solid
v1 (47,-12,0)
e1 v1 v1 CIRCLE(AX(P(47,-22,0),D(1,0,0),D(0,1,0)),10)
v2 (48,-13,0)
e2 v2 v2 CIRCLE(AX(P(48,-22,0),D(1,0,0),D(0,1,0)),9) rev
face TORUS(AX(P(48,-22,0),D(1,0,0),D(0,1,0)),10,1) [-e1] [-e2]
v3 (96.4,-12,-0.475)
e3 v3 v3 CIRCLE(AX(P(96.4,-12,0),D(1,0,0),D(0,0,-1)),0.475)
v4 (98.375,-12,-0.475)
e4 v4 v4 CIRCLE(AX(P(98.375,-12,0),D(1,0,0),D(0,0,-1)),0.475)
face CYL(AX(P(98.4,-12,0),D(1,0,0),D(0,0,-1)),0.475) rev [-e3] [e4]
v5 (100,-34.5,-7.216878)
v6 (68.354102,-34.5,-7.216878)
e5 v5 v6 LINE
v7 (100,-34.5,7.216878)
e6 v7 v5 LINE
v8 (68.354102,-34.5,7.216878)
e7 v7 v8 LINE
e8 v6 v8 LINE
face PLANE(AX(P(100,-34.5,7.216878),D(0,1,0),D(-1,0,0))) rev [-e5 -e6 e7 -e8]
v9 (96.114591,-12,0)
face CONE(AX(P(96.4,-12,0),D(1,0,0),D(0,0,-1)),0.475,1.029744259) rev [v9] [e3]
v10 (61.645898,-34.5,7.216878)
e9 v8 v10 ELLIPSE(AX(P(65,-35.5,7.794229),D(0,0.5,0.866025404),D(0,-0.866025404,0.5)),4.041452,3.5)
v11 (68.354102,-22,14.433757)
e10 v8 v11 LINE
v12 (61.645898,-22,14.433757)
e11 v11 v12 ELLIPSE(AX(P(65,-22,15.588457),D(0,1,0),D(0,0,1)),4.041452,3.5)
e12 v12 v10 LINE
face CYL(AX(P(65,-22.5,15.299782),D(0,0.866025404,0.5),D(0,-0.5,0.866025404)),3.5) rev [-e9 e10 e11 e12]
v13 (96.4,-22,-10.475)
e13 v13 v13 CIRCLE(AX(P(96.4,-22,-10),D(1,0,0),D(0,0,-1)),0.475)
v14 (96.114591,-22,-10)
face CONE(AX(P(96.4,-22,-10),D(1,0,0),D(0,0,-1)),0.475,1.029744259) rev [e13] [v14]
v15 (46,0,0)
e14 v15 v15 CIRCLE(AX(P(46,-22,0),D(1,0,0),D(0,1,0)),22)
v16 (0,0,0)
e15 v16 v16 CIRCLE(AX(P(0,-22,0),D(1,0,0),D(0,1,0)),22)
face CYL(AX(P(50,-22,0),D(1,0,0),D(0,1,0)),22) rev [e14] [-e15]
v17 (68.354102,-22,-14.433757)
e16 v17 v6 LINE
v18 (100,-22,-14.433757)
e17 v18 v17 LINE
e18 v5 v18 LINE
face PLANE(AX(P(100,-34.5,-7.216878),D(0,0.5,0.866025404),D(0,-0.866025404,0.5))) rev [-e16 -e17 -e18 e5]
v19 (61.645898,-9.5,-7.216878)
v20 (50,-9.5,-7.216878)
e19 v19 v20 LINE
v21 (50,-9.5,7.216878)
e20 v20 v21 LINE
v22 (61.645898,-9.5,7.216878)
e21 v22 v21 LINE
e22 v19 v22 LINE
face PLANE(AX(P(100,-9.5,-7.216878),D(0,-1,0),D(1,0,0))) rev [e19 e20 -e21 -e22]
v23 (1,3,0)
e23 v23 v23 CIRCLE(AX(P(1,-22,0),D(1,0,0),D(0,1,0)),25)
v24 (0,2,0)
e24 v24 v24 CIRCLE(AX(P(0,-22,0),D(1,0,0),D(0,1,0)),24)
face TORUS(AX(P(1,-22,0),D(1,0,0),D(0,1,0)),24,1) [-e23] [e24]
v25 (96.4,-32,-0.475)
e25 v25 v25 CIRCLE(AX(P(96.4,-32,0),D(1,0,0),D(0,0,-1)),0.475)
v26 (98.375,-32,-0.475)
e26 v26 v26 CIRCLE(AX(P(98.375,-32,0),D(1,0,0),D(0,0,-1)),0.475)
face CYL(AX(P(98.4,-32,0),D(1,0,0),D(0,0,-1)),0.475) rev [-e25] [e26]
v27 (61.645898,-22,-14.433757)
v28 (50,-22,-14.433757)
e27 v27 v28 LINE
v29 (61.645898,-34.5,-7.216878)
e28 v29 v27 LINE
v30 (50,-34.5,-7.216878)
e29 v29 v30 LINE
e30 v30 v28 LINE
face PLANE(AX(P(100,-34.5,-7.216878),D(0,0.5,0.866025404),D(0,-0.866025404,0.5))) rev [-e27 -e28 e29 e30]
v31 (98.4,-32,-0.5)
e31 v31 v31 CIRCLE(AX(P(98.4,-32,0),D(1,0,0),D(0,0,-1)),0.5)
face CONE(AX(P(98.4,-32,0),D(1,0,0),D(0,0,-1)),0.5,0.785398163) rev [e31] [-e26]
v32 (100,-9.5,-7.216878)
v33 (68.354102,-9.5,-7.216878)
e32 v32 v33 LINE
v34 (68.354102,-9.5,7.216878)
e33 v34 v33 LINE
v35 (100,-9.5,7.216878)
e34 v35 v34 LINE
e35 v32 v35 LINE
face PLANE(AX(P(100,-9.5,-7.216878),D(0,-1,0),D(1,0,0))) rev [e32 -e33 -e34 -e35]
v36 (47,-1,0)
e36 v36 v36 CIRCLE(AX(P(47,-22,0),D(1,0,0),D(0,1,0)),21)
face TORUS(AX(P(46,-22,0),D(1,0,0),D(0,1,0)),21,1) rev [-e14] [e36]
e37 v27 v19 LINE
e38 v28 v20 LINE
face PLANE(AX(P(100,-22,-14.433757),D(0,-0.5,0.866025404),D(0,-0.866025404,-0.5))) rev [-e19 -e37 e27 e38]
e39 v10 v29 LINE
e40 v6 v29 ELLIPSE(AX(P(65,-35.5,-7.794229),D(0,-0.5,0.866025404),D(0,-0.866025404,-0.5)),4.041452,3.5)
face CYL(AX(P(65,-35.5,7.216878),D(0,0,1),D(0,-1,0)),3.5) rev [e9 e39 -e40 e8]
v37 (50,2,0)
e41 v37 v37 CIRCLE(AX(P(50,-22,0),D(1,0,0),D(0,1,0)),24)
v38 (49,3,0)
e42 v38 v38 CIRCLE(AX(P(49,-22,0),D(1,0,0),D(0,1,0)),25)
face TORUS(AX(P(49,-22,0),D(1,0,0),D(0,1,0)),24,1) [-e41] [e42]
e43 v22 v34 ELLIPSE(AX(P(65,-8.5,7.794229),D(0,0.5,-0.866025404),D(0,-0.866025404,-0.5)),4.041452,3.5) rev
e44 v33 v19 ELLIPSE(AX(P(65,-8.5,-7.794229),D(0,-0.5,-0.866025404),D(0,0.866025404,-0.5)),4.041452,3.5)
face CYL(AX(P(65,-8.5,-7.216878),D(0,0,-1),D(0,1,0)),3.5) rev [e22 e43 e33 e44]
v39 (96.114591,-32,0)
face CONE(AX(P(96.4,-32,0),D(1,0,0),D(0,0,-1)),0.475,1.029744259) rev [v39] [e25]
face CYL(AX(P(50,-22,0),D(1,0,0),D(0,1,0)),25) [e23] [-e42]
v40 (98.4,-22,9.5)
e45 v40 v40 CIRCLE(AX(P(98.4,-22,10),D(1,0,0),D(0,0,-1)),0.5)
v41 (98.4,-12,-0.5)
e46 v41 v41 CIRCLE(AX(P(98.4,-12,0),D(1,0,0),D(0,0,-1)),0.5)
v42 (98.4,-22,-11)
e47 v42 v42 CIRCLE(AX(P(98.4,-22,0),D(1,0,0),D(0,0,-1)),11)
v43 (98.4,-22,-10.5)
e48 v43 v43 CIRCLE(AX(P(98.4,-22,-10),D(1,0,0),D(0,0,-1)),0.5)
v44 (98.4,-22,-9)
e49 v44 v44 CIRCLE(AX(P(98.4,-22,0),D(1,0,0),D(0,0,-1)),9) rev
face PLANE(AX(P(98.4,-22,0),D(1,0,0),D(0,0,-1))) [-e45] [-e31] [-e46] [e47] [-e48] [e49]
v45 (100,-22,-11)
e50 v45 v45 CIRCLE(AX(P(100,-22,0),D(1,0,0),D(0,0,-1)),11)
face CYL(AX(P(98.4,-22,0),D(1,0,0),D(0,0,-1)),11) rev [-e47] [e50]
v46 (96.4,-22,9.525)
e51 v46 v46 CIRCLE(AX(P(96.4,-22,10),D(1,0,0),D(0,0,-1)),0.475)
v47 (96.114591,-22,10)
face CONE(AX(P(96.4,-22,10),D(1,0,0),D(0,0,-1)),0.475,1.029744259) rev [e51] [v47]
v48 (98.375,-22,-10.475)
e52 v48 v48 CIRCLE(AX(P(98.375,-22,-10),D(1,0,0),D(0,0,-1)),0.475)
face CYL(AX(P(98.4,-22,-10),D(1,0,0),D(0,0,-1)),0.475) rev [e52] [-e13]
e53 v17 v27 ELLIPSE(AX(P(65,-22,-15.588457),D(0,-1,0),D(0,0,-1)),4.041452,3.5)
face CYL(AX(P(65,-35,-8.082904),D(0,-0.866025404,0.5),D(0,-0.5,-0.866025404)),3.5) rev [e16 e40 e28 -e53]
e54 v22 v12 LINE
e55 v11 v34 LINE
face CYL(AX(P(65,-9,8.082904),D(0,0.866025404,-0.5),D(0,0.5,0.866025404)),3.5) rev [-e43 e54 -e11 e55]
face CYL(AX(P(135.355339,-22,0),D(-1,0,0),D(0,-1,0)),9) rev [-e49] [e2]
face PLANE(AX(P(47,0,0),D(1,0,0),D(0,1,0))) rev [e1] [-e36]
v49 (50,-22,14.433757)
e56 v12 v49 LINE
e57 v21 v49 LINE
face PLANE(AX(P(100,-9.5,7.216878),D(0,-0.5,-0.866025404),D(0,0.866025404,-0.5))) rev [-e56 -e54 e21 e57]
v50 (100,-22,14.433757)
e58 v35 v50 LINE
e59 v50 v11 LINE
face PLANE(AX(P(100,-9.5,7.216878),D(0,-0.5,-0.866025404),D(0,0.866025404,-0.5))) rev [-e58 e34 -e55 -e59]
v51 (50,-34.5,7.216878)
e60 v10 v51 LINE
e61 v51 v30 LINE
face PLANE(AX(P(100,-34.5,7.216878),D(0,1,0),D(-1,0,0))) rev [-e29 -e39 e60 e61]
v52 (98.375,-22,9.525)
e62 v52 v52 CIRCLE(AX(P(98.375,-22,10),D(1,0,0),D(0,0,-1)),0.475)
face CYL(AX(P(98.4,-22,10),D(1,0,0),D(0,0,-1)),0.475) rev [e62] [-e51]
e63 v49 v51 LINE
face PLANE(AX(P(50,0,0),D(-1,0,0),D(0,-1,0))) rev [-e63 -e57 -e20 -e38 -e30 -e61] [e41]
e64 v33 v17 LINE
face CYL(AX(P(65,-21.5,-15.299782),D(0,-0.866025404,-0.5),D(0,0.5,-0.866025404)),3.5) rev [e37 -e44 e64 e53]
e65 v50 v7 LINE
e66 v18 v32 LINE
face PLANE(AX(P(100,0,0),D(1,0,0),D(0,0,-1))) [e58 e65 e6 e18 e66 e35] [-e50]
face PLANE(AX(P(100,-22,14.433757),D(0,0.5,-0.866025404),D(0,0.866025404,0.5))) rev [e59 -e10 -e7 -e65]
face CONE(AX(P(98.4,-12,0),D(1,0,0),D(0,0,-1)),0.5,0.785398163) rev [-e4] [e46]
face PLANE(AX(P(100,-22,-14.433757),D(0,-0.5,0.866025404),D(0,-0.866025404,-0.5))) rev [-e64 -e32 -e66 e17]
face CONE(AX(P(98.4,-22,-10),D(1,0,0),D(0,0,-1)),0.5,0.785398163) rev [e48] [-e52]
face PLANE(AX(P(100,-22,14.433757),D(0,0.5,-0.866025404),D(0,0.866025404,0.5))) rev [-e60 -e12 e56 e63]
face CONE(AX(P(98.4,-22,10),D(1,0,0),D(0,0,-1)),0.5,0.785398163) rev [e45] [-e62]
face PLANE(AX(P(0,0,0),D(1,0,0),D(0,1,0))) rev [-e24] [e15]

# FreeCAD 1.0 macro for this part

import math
import FreeCAD as App
import Part
import Sketcher
from FreeCAD import Vector
Q = App.Units.Quantity


def edges_at(feature, points):
    """Names of the edges that pass closest to the given points."""
    edges = feature.Shape.Edges
    near = lambda p: min(range(len(edges)), key=lambda i: edges[i].distToShape(Part.Vertex(*p))[0])
    return sorted({f"Edge{near(p) + 1}" for p in points})


def add_polygon(sketch, points):
    """Adds a closed chain of lines whose ends are joined by coincident constraints."""
    first, n = sketch.GeometryCount, len(points)
    for a, b in zip(points, points[1:] + points[:1]):
        sketch.addGeometry(Part.LineSegment(App.Vector(*a, 0), App.Vector(*b, 0)), False)
    for i in range(n):
        sketch.addConstraint(Sketcher.Constraint("Coincident", first + i, 2, first + (i + 1) % n, 1))

doc = App.newDocument("Part")
params = doc.addObject("Spreadsheet::Sheet", "Params")
for row, (alias, value) in enumerate([
    ("sketch1_radius", "1 mm"),
    ("sketch1_width", "46 mm"),
    ("sketch1_width2", "2 mm"),
    ("sketch1_height", "10 mm"),
    ("revolution_angle", "360 deg"),
    ("pad1_length", "50 mm"),
    ("sketch3_diameter", "25 mm"),
    ("sketch3_diameter2", "18 mm"),
    ("pad2_length", "53 mm"),
    ("sketch4_width", "3.5 mm"),
    ("groove_angle", "360 deg"),
    ("fillet_radius", "1 mm"),
    ("sketch5_diameter", "22 mm"),
    ("pocket1_length", "1.6 mm"),
    ("sketch6_height", "0.5 mm"),
    ("groove2_angle", "360 deg"),
], start=1):
    params.set(f"A{row}", alias)
    params.set(f"B{row}", "=" + value)
    params.setAlias(f"B{row}", alias)

body = doc.addObject("PartDesign::Body", "Body")

# Sketch on XY plane
sketch1 = body.newObject("Sketcher::SketchObject", "Sketch")
sketch1.AttachmentSupport = (doc.getObject("XY_Plane"), [""])
sketch1.MapMode = "FlatFace"
sketch1.addGeometry(Part.ArcOfCircle(Part.Circle(Vector(1, 2, 0), Vector(0, 0, 1), 1), math.radians(90), math.radians(180)), False)
sketch1.addGeometry(Part.LineSegment(Vector(0, 2, 0), Vector(0, 0, 0)), False)
sketch1.addGeometry(Part.LineSegment(Vector(0, 0, 0), Vector(46, 0, 0)), False)
sketch1.addGeometry(Part.ArcOfCircle(Part.Circle(Vector(46, -1, 0), Vector(0, 0, 1), 1), math.radians(0), math.radians(90)), False)
sketch1.addGeometry(Part.LineSegment(Vector(47, -1, 0), Vector(47, -11, 0)), False)
sketch1.addGeometry(Part.ArcOfCircle(Part.Circle(Vector(48, -11, 0), Vector(0, 0, 1), 1), math.radians(-180), math.radians(-90)), False)
sketch1.addGeometry(Part.LineSegment(Vector(48, -12, 0), Vector(50, -12, 0)), False)
sketch1.addGeometry(Part.LineSegment(Vector(50, -12, 0), Vector(50, 2, 0)), False)
sketch1.addGeometry(Part.ArcOfCircle(Part.Circle(Vector(49, 2, 0), Vector(0, 0, 1), 1), math.radians(0), math.radians(90)), False)
sketch1.addGeometry(Part.LineSegment(Vector(49, 3, 0), Vector(1, 3, 0)), False)
sketch1.addGeometry(Part.LineSegment(Vector(50, -22, 0), Vector(0, -22, 0)), True)  # axis
sketch1.addConstraint(Sketcher.Constraint("Tangent", 0, 2, 1, 1))
sketch1.addConstraint(Sketcher.Constraint("Coincident", 1, 2, 2, 1))
sketch1.addConstraint(Sketcher.Constraint("Tangent", 2, 2, 3, 2))
sketch1.addConstraint(Sketcher.Constraint("Tangent", 3, 1, 4, 1))
sketch1.addConstraint(Sketcher.Constraint("Tangent", 4, 2, 5, 1))
sketch1.addConstraint(Sketcher.Constraint("Tangent", 5, 2, 6, 1))
sketch1.addConstraint(Sketcher.Constraint("Coincident", 6, 2, 7, 1))
sketch1.addConstraint(Sketcher.Constraint("Tangent", 7, 2, 8, 1))
sketch1.addConstraint(Sketcher.Constraint("Tangent", 8, 2, 9, 1))
sketch1.addConstraint(Sketcher.Constraint("Tangent", 9, 2, 0, 1))
sketch1.addConstraint(Sketcher.Constraint("Vertical", 1))
sketch1.addConstraint(Sketcher.Constraint("Horizontal", 2))
sketch1.addConstraint(Sketcher.Constraint("Vertical", 4))
sketch1.addConstraint(Sketcher.Constraint("Horizontal", 6))
sketch1.addConstraint(Sketcher.Constraint("Vertical", 7))
sketch1.addConstraint(Sketcher.Constraint("Horizontal", 9))
sketch1.addConstraint(Sketcher.Constraint("Horizontal", 10))
sketch1.addConstraint(Sketcher.Constraint("Coincident", 1, 2, -1, 1))
sketch1.addConstraint(Sketcher.Constraint("Equal", 0, 3))
sketch1.addConstraint(Sketcher.Constraint("Equal", 3, 5))
sketch1.addConstraint(Sketcher.Constraint("Equal", 5, 8))
sketch1.addConstraint(Sketcher.Constraint("PointOnObject", 10, 2, -2))
sketch1.addConstraint(Sketcher.Constraint("Vertical", 7, 2, 10, 1))
sketch1.addConstraint(Sketcher.Constraint("Equal", 6, 1))
sketch1.addConstraint(Sketcher.Constraint("Radius", 0, Q("1 mm")))
sketch1.addConstraint(Sketcher.Constraint("DistanceX", 2, 1, 2, 2, Q("46 mm")))
sketch1.addConstraint(Sketcher.Constraint("DistanceX", 6, 1, 6, 2, Q("2 mm")))
sketch1.addConstraint(Sketcher.Constraint("DistanceY", 4, 2, 4, 1, Q("10 mm")))
sketch1.addConstraint(Sketcher.Constraint("DistanceY", 10, 1, -1, 1, Q("22 mm")))
sketch1.setExpression("Constraints[24]", "Params.sketch1_radius")
sketch1.setExpression("Constraints[25]", "Params.sketch1_width")
sketch1.setExpression("Constraints[26]", "Params.sketch1_width2")
sketch1.setExpression("Constraints[27]", "Params.sketch1_height")
revolution = body.newObject("PartDesign::Revolution", "Revolution")
revolution.Profile = sketch1
revolution.ReferenceAxis = (sketch1, ["Axis0"])
revolution.setExpression("Angle", "Params.revolution_angle")

# Sketch on YZ plane
sketch2 = body.newObject("Sketcher::SketchObject", "Sketch001")
sketch2.AttachmentSupport = (doc.getObject("YZ_Plane"), [""])
sketch2.MapMode = "FlatFace"
sketch2.AttachmentOffset = App.Placement(Vector(0, 0, 50), App.Rotation())
add_polygon(sketch2, [(-22, -14), (-10, -7), (-10, 7), (-22, 14), (-34, 7), (-34, -7)])  # lines 0-5
add_polygon(sketch2, [(-12, -6), (-22, -12), (-32, -6), (-32, 6), (-22, 12), (-12, 6)])  # lines 6-11
sketch2.addConstraint(Sketcher.Constraint("Vertical", 1))
sketch2.addConstraint(Sketcher.Constraint("Vertical", 4))
sketch2.addConstraint(Sketcher.Constraint("Vertical", 8))
sketch2.addConstraint(Sketcher.Constraint("Vertical", 11))
sketch2.addConstraint(Sketcher.Constraint("Symmetric", 2, 2, 5, 2, -1))
sketch2.addConstraint(Sketcher.Constraint("Symmetric", 6, 2, 9, 2, -1))
sketch2.addConstraint(Sketcher.Constraint("Parallel", 0, 3))
sketch2.addConstraint(Sketcher.Constraint("Parallel", 2, 5))
sketch2.addConstraint(Sketcher.Constraint("Parallel", 3, 6))
sketch2.addConstraint(Sketcher.Constraint("Parallel", 5, 7))
sketch2.addConstraint(Sketcher.Constraint("Parallel", 6, 9))
sketch2.addConstraint(Sketcher.Constraint("Parallel", 7, 10))
sketch2.addConstraint(Sketcher.Constraint("Horizontal", 1, 2, 3, 2))
sketch2.addConstraint(Sketcher.Constraint("Horizontal", 0, 2, 4, 2))
sketch2.addConstraint(Sketcher.Constraint("Horizontal", 8, 2, 10, 2))
sketch2.addConstraint(Sketcher.Constraint("Vertical", 5, 2, 6, 2))
sketch2.addConstraint(Sketcher.Constraint("Angle", 0, Q("30 deg")))
sketch2.addConstraint(Sketcher.Constraint("DistanceX", 2, 2, -1, 1, Q("22 mm")))
sketch2.addConstraint(Sketcher.Constraint("DistanceX", 7, 2, -1, 1, Q("32 mm")))
sketch2.addConstraint(Sketcher.Constraint("DistanceX", 3, 2, 1, 2, Q("25 mm")))
sketch2.addConstraint(Sketcher.Constraint("DistanceY", 1, 1, 1, 2, Q("14.433757 mm")))
sketch2.addConstraint(Sketcher.Constraint("DistanceY", 8, 1, 8, 2, Q("11.547005 mm")))
pad1 = body.newObject("PartDesign::Pad", "Pad")
pad1.Profile = sketch2
pad1.setExpression("Length", "Params.pad1_length")

# Sketch on YZ plane
sketch3 = body.newObject("Sketcher::SketchObject", "Sketch002")
sketch3.AttachmentSupport = (doc.getObject("YZ_Plane"), [""])
sketch3.MapMode = "FlatFace"
sketch3.AttachmentOffset = App.Placement(Vector(0, 0, 100), App.Rotation())
sketch3.addGeometry(Part.Circle(Vector(-22, 0, 0), Vector(0, 0, 1), 12), False)
sketch3.addGeometry(Part.Circle(Vector(-22, 0, 0), Vector(0, 0, 1), 9), False)
sketch3.addConstraint(Sketcher.Constraint("Coincident", 1, 3, 0, 3))
sketch3.addConstraint(Sketcher.Constraint("PointOnObject", 0, 3, -1))
sketch3.addConstraint(Sketcher.Constraint("Diameter", 0, Q("25 mm")))
sketch3.addConstraint(Sketcher.Constraint("Diameter", 1, Q("18 mm")))
sketch3.addConstraint(Sketcher.Constraint("DistanceX", 0, 3, -1, 1, Q("22 mm")))
sketch3.setExpression("Constraints[2]", "Params.sketch3_diameter")
sketch3.setExpression("Constraints[3]", "Params.sketch3_diameter2")
pad2 = body.newObject("PartDesign::Pad", "Pad001")
pad2.Profile = sketch3
pad2.setExpression("Length", "Params.pad2_length")
pad2.Reversed = True

# Sketch on XZ plane
sketch4 = body.newObject("Sketcher::SketchObject", "Sketch003")
sketch4.AttachmentSupport = (doc.getObject("XZ_Plane"), [""])
sketch4.MapMode = "FlatFace"
sketch4.AttachmentOffset = App.Placement(Vector(0, 0, 8.5), App.Rotation())
add_polygon(sketch4, [(65, -7.2), (65, 7.2), (68.5, 7.2), (68.5, -7.2)])  # lines 0-3
sketch4.addGeometry(Part.LineSegment(Vector(65, -7.2, 0), Vector(65, 7.2, 0)), True)  # axis
sketch4.addConstraint(Sketcher.Constraint("Vertical", 0))
sketch4.addConstraint(Sketcher.Constraint("Horizontal", 1))
sketch4.addConstraint(Sketcher.Constraint("Vertical", 2))
sketch4.addConstraint(Sketcher.Constraint("Horizontal", 3))
sketch4.addConstraint(Sketcher.Constraint("Vertical", 4))
sketch4.addConstraint(Sketcher.Constraint("Coincident", 4, 1, 3, 2))
sketch4.addConstraint(Sketcher.Constraint("Horizontal", 1, 2, 4, 2))
sketch4.addConstraint(Sketcher.Constraint("DistanceX", 1, 1, 1, 2, Q("3.5 mm")))
sketch4.addConstraint(Sketcher.Constraint("DistanceX", -1, 1, 0, 2, Q("65 mm")))
sketch4.addConstraint(Sketcher.Constraint("DistanceY", 0, 1, 0, 2, Q("14.433757 mm")))
sketch4.addConstraint(Sketcher.Constraint("DistanceY", -1, 1, 0, 2, Q("7.216878 mm")))
sketch4.setExpression("Constraints[11]", "Params.sketch4_width")
groove = body.newObject("PartDesign::Groove", "Groove")
groove.Profile = sketch4
groove.ReferenceAxis = (sketch4, ["Axis0"])
groove.setExpression("Angle", "Params.groove_angle")
doc.recompute()

datumline = body.newObject("PartDesign::Line", "DatumLine")
datumline.Placement = App.Placement(Vector(0, -22, 0), App.Rotation(Vector(0, 0, 1), Vector(-1, 0, 0)))
polarpattern = body.newObject("PartDesign::PolarPattern", "PolarPattern")
polarpattern.Originals = [groove]
polarpattern.Axis = (datumline, [""])
polarpattern.Angle = 360
polarpattern.Occurrences = 6
body.Tip = polarpattern
doc.recompute()

fillet = body.newObject("PartDesign::Fillet", "Fillet")
fillet.Base = (polarpattern, edges_at(polarpattern, [(47, -13, 0)]))
fillet.setExpression("Radius", "Params.fillet_radius")

# Sketch on YZ plane
sketch5 = body.newObject("Sketcher::SketchObject", "Sketch004")
sketch5.AttachmentSupport = (doc.getObject("YZ_Plane"), [""])
sketch5.MapMode = "FlatFace"
sketch5.AttachmentOffset = App.Placement(Vector(0, 0, 100), App.Rotation())
sketch5.addGeometry(Part.Circle(Vector(-22, 0, 0), Vector(0, 0, 1), 11), False)
sketch5.addConstraint(Sketcher.Constraint("PointOnObject", 0, 3, -1))
sketch5.addConstraint(Sketcher.Constraint("Diameter", 0, Q("22 mm")))
sketch5.addConstraint(Sketcher.Constraint("DistanceX", 0, 3, -1, 1, Q("22 mm")))
sketch5.setExpression("Constraints[1]", "Params.sketch5_diameter")
pocket1 = body.newObject("PartDesign::Pocket", "Pocket")
pocket1.Profile = sketch5
pocket1.setExpression("Length", "Params.pocket1_length")

# Sketch on XZ plane
sketch6 = body.newObject("Sketcher::SketchObject", "Sketch005")
sketch6.AttachmentSupport = (doc.getObject("XZ_Plane"), [""])
sketch6.MapMode = "FlatFace"
sketch6.AttachmentOffset = App.Placement(Vector(0, 0, 12), App.Rotation())
add_polygon(sketch6, [(96.115, 0), (98.4, 0), (98.4, -0.5), (98.375, -0.475), (96.4, -0.475)])  # lines 0-4
sketch6.addConstraint(Sketcher.Constraint("Horizontal", 0))
sketch6.addConstraint(Sketcher.Constraint("Vertical", 1))
sketch6.addConstraint(Sketcher.Constraint("Horizontal", 3))
sketch6.addConstraint(Sketcher.Constraint("PointOnObject", 0, 2, -1))
sketch6.addConstraint(Sketcher.Constraint("Angle", 2, Q("135 deg")))
sketch6.addConstraint(Sketcher.Constraint("Angle", 4, Q("121 deg")))
sketch6.addConstraint(Sketcher.Constraint("DistanceY", 1, 2, 1, 1, Q("0.5 mm")))
sketch6.addConstraint(Sketcher.Constraint("DistanceX", 3, 2, 1, 2, Q("2 mm")))
sketch6.addConstraint(Sketcher.Constraint("DistanceX", -1, 1, 0, 2, Q("98.4 mm")))
sketch6.addConstraint(Sketcher.Constraint("DistanceX", 3, 2, 3, 1, Q("1.975 mm")))
sketch6.setExpression("Constraints[11]", "Params.sketch6_height")
groove2 = body.newObject("PartDesign::Groove", "Groove001")
groove2.Profile = sketch6
groove2.ReferenceAxis = (sketch6, ["H_Axis"])
groove2.setExpression("Angle", "Params.groove2_angle")
doc.recompute()

datumline2 = body.newObject("PartDesign::Line", "DatumLine001")
datumline2.Placement = App.Placement(Vector(0, -22, 0), App.Rotation(Vector(0, 0, 1), Vector(1, 0, 0)))
polarpattern2 = body.newObject("PartDesign::PolarPattern", "PolarPattern001")
polarpattern2.Originals = [groove2]
polarpattern2.Axis = (datumline2, [""])
polarpattern2.Angle = 360
polarpattern2.Occurrences = 4
body.Tip = polarpattern2

doc.recompute()
